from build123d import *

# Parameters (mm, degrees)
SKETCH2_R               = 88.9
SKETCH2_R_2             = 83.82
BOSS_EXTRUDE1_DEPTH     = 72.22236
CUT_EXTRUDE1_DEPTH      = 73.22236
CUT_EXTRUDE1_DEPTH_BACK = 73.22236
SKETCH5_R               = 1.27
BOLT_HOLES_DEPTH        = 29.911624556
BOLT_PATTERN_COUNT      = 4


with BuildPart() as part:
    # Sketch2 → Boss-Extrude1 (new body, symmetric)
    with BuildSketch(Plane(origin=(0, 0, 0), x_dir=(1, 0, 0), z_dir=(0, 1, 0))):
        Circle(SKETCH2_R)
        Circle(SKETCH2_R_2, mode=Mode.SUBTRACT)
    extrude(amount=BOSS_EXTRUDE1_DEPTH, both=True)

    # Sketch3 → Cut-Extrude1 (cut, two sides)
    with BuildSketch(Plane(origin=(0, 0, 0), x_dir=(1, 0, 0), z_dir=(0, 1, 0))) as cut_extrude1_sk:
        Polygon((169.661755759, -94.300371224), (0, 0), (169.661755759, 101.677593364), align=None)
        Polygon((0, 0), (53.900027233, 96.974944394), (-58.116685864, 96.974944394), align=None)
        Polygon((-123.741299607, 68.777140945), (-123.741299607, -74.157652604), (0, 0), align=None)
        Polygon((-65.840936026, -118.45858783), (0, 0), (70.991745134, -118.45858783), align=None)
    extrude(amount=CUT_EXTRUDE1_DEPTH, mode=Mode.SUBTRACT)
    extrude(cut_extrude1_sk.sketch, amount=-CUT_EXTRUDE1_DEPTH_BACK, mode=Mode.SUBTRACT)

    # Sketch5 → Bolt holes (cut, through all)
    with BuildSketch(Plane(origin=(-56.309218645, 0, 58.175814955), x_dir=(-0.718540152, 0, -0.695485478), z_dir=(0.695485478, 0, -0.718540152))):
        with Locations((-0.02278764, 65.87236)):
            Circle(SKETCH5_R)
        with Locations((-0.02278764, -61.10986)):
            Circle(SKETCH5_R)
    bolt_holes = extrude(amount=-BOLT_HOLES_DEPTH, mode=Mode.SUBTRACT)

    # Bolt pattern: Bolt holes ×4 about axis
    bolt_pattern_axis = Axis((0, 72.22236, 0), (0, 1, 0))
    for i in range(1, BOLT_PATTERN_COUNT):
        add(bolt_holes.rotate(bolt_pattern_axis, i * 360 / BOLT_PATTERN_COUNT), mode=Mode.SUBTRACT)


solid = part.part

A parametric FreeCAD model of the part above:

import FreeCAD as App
import Part
import Sketcher
Q = App.Units.Quantity


def add_polygon(sketch, points):
    """Adds a closed chain of lines whose ends are joined by coincident constraints."""
    first, n = sketch.GeometryCount, len(points)
    for a, b in zip(points, points[1:] + points[:1]):
        sketch.addGeometry(Part.LineSegment(App.Vector(*a, 0), App.Vector(*b, 0)), False)
    for i in range(n):
        sketch.addConstraint(Sketcher.Constraint("Coincident", first + i, 2, first + (i + 1) % n, 1))

doc = App.newDocument("Part")
body = doc.addObject("PartDesign::Body", "Body")
body.AllowCompound = True

sketch1 = body.newObject("Sketcher::SketchObject", "Sketch")
sketch1.AttachmentSupport = (doc.getObject("XZ_Plane"), [""])
sketch1.MapMode = "FlatFace"
sketch1.addGeometry([
    Part.Circle(App.Vector(0, 0, 0), App.Vector(0, 0, 1), 89),
    Part.Circle(App.Vector(0, 0, 0), App.Vector(0, 0, 1), 84),
], False)
sketch1.addConstraint([
    Sketcher.Constraint("Coincident", 0, 3, -1, 1),
    Sketcher.Constraint("Coincident", 1, 3, -1, 1),
    Sketcher.Constraint("Diameter", 0, Q("7 in")),
    Sketcher.Constraint("Diameter", 1, Q("6.6 in")),
])
pad1 = body.newObject("PartDesign::Pad", "Pad")
pad1.Profile = sketch1
pad1.Length = Q("5.6868 in")
pad1.Midplane = True

sketch2 = body.newObject("Sketcher::SketchObject", "Sketch001")
sketch2.AttachmentSupport = (doc.getObject("XZ_Plane"), [""])
sketch2.MapMode = "FlatFace"
add_polygon(sketch2, [(0, 0), (170, 94), (170, -102)])
add_polygon(sketch2, [(0, 0), (54, -97), (-58, -97)])
add_polygon(sketch2, [(-124, -69), (-124, 74), (0, 0)])
add_polygon(sketch2, [(0, 0), (-66, 118), (71, 118)])
sketch2.addConstraint([
    Sketcher.Constraint("Vertical", 1),
    Sketcher.Constraint("Horizontal", 4),
    Sketcher.Constraint("Vertical", 6),
    Sketcher.Constraint("Horizontal", 10),
    Sketcher.Constraint("Coincident", 2, 2, -1, 1),
    Sketcher.Constraint("Coincident", 5, 2, -1, 1),
    Sketcher.Constraint("Coincident", 7, 2, -1, 1),
    Sketcher.Constraint("Coincident", 11, 2, -1, 1),
    Sketcher.Constraint("Perpendicular", 0, 3),
    Sketcher.Constraint("Perpendicular", 2, 5),
    Sketcher.Constraint("Perpendicular", 5, 7),
    Sketcher.Constraint("Perpendicular", 3, 8),
    Sketcher.Constraint("Perpendicular", 8, 9),
    Sketcher.Constraint("Perpendicular", 7, 11),
    Sketcher.Constraint("DistanceX", 10, 1, 10, 2, Q("136.832681 mm")),
    Sketcher.Constraint("DistanceX", 6, 2, -1, 1, Q("123.7413 mm")),
    Sketcher.Constraint("Distance", 0, Q("194.107371 mm")),
    Sketcher.Constraint("Distance", 11, Q("138.102371 mm")),
    Sketcher.Constraint("DistanceX", 4, 2, 4, 1, Q("112.016713 mm")),
    Sketcher.Constraint("DistanceY", 1, 2, 1, 1, Q("195.977965 mm")),
])
pocket1 = body.newObject("PartDesign::Pocket", "Pocket")
pocket1.Profile = sketch2
pocket1.Type = "ThroughAll"
pocket1.Midplane = True

sketch3 = body.newObject("Sketcher::SketchObject", "Sketch002")
sketch3.Placement = App.Placement(App.Vector(-56.309219, 0, 58.175815), App.Rotation(App.Vector(-0.718540152, 0, -0.695485478), App.Vector(0, 1, 0), App.Vector(0.695485478, 0, -0.718540152), "ZXY"))
sketch3.addGeometry([
    Part.Circle(App.Vector(0, 65.9, 0), App.Vector(0, 0, 1), 1.3),
    Part.Circle(App.Vector(0, -61.1, 0), App.Vector(0, 0, 1), 1.3),
], False)
sketch3.addConstraint([
    Sketcher.Constraint("Equal", 0, 1),
    Sketcher.Constraint("Vertical", 0, 3, 1, 3),
    Sketcher.Constraint("Diameter", 0, Q("0.1 in")),
    Sketcher.Constraint("DistanceY", -1, 1, 0, 3, Q("2.5934 in")),
    Sketcher.Constraint("DistanceY", 1, 3, -1, 1, Q("2.4059 in")),
    Sketcher.Constraint("DistanceX", 0, 3, -1, 1, Q("0.022788 mm")),
])
pocket2 = body.newObject("PartDesign::Pocket", "Pocket001")
pocket2.Profile = sketch3
pocket2.Type = "ThroughAll"
doc.recompute()

polarpattern = body.newObject("PartDesign::PolarPattern", "PolarPattern")
polarpattern.Originals = [pocket2]
polarpattern.Axis = (doc.getObject("Y_Axis"), [""])
polarpattern.Angle = 360
polarpattern.Occurrences = 4
body.Tip = polarpattern

doc.recompute()
